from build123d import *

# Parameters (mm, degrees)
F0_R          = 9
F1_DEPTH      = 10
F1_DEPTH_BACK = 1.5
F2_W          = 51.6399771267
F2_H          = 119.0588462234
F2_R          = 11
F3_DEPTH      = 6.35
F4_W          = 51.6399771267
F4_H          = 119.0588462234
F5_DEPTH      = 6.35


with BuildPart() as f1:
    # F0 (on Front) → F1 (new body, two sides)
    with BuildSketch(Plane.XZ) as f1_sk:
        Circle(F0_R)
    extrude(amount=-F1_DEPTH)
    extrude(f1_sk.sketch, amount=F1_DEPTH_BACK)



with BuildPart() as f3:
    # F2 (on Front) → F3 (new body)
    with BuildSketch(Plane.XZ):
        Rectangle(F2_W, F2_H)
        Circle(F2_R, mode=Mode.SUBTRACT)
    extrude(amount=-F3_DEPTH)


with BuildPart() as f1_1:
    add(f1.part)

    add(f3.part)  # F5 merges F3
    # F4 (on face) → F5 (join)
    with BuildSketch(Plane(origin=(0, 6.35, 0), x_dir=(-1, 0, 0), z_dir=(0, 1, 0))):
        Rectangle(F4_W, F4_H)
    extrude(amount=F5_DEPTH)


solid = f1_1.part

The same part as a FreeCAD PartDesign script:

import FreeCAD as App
import Part
import Sketcher

V = App.Vector
Q = App.Units.Quantity


def add_polygon(sketch, points):
    """Adds a closed chain of lines whose ends are joined by coincident constraints."""
    first, n = sketch.GeometryCount, len(points)
    for a, b in zip(points, points[1:] + points[:1]):
        sketch.addGeometry(Part.LineSegment(App.Vector(*a, 0), App.Vector(*b, 0)), False)
    for i in range(n):
        sketch.addConstraint(Sketcher.Constraint("Coincident", first + i, 2, first + (i + 1) % n, 1))

doc = App.newDocument("Part")
body = doc.addObject("PartDesign::Body", "Body")

# Sketch on XZ plane
sketch1 = body.newObject("Sketcher::SketchObject", "Sketch")
sketch1.AttachmentSupport = (doc.getObject("XZ_Plane"), [""])
sketch1.MapMode = "FlatFace"
sketch1.addGeometry(Part.Circle(V(0, 0, 0), V(0, 0, 1), 9), False)
sketch1.addConstraint([
    Sketcher.Constraint("Coincident", 0, 3, -1, 1),
    Sketcher.Constraint("Diameter", 0, Q("18 mm")),
])
pad1 = body.newObject("PartDesign::Pad", "Pad")
pad1.Profile = sketch1
pad1.Type = "TwoLengths"
pad1.Length = 10
pad1.Length2 = 1.5
pad1.Reversed = True
body2 = doc.addObject("PartDesign::Body", "Body001")

# Sketch on XZ plane
sketch2 = body2.newObject("Sketcher::SketchObject", "Sketch001")
sketch2.AttachmentSupport = (doc.getObject("XZ_Plane001"), [""])
sketch2.MapMode = "FlatFace"
add_polygon(sketch2, [(-26, 60), (-26, -60), (26, -60), (26, 60)])  # lines 0-3
sketch2.addGeometry(Part.Circle(V(0, 0, 0), V(0, 0, 1), 11), False)  # 4
sketch2.addConstraint([
    Sketcher.Constraint("Vertical", 0),
    Sketcher.Constraint("Horizontal", 1),
    Sketcher.Constraint("Vertical", 2),
    Sketcher.Constraint("Horizontal", 3),
    Sketcher.Constraint("Coincident", 4, 3, -1, 1),
    Sketcher.Constraint("Symmetric", 0, 2, 2, 2, -1, 1),
    Sketcher.Constraint("Diameter", 4, Q("22 mm")),
    Sketcher.Constraint("DistanceX", 1, 1, 1, 2, Q("51.639977 mm")),
    Sketcher.Constraint("DistanceY", 0, 2, 0, 1, Q("119.058846 mm")),
])
pad2 = body2.newObject("PartDesign::Pad", "Pad001")
pad2.Profile = sketch2
pad2.Length = 6.35
pad2.Reversed = True
body.AllowCompound = True
doc.recompute()

boolean = body.newObject("PartDesign::Boolean", "Boolean")
boolean.Type = "Fuse"
boolean.addObjects([body2])

# Sketch on XZ plane
sketch3 = body.newObject("Sketcher::SketchObject", "Sketch002")
sketch3.AttachmentSupport = (doc.getObject("XZ_Plane"), [""])
sketch3.MapMode = "FlatFace"
sketch3.AttachmentOffset = App.Placement(V(0, 0, -6.35), App.Rotation())
add_polygon(sketch3, [(26, 60), (26, -60), (-26, -60), (-26, 60)])  # lines 0-3
sketch3.addConstraint([
    Sketcher.Constraint("Vertical", 0),
    Sketcher.Constraint("Horizontal", 1),
    Sketcher.Constraint("Vertical", 2),
    Sketcher.Constraint("Horizontal", 3),
    Sketcher.Constraint("Symmetric", 0, 2, 2, 2, -1, 1),
    Sketcher.Constraint("DistanceX", 1, 2, 1, 1, Q("51.639977 mm")),
    Sketcher.Constraint("DistanceY", 0, 2, 0, 1, Q("119.058846 mm")),
])
pad3 = body.newObject("PartDesign::Pad", "Pad002")
pad3.Profile = sketch3
pad3.Length = 6.35
pad3.Reversed = True

doc.recompute()
